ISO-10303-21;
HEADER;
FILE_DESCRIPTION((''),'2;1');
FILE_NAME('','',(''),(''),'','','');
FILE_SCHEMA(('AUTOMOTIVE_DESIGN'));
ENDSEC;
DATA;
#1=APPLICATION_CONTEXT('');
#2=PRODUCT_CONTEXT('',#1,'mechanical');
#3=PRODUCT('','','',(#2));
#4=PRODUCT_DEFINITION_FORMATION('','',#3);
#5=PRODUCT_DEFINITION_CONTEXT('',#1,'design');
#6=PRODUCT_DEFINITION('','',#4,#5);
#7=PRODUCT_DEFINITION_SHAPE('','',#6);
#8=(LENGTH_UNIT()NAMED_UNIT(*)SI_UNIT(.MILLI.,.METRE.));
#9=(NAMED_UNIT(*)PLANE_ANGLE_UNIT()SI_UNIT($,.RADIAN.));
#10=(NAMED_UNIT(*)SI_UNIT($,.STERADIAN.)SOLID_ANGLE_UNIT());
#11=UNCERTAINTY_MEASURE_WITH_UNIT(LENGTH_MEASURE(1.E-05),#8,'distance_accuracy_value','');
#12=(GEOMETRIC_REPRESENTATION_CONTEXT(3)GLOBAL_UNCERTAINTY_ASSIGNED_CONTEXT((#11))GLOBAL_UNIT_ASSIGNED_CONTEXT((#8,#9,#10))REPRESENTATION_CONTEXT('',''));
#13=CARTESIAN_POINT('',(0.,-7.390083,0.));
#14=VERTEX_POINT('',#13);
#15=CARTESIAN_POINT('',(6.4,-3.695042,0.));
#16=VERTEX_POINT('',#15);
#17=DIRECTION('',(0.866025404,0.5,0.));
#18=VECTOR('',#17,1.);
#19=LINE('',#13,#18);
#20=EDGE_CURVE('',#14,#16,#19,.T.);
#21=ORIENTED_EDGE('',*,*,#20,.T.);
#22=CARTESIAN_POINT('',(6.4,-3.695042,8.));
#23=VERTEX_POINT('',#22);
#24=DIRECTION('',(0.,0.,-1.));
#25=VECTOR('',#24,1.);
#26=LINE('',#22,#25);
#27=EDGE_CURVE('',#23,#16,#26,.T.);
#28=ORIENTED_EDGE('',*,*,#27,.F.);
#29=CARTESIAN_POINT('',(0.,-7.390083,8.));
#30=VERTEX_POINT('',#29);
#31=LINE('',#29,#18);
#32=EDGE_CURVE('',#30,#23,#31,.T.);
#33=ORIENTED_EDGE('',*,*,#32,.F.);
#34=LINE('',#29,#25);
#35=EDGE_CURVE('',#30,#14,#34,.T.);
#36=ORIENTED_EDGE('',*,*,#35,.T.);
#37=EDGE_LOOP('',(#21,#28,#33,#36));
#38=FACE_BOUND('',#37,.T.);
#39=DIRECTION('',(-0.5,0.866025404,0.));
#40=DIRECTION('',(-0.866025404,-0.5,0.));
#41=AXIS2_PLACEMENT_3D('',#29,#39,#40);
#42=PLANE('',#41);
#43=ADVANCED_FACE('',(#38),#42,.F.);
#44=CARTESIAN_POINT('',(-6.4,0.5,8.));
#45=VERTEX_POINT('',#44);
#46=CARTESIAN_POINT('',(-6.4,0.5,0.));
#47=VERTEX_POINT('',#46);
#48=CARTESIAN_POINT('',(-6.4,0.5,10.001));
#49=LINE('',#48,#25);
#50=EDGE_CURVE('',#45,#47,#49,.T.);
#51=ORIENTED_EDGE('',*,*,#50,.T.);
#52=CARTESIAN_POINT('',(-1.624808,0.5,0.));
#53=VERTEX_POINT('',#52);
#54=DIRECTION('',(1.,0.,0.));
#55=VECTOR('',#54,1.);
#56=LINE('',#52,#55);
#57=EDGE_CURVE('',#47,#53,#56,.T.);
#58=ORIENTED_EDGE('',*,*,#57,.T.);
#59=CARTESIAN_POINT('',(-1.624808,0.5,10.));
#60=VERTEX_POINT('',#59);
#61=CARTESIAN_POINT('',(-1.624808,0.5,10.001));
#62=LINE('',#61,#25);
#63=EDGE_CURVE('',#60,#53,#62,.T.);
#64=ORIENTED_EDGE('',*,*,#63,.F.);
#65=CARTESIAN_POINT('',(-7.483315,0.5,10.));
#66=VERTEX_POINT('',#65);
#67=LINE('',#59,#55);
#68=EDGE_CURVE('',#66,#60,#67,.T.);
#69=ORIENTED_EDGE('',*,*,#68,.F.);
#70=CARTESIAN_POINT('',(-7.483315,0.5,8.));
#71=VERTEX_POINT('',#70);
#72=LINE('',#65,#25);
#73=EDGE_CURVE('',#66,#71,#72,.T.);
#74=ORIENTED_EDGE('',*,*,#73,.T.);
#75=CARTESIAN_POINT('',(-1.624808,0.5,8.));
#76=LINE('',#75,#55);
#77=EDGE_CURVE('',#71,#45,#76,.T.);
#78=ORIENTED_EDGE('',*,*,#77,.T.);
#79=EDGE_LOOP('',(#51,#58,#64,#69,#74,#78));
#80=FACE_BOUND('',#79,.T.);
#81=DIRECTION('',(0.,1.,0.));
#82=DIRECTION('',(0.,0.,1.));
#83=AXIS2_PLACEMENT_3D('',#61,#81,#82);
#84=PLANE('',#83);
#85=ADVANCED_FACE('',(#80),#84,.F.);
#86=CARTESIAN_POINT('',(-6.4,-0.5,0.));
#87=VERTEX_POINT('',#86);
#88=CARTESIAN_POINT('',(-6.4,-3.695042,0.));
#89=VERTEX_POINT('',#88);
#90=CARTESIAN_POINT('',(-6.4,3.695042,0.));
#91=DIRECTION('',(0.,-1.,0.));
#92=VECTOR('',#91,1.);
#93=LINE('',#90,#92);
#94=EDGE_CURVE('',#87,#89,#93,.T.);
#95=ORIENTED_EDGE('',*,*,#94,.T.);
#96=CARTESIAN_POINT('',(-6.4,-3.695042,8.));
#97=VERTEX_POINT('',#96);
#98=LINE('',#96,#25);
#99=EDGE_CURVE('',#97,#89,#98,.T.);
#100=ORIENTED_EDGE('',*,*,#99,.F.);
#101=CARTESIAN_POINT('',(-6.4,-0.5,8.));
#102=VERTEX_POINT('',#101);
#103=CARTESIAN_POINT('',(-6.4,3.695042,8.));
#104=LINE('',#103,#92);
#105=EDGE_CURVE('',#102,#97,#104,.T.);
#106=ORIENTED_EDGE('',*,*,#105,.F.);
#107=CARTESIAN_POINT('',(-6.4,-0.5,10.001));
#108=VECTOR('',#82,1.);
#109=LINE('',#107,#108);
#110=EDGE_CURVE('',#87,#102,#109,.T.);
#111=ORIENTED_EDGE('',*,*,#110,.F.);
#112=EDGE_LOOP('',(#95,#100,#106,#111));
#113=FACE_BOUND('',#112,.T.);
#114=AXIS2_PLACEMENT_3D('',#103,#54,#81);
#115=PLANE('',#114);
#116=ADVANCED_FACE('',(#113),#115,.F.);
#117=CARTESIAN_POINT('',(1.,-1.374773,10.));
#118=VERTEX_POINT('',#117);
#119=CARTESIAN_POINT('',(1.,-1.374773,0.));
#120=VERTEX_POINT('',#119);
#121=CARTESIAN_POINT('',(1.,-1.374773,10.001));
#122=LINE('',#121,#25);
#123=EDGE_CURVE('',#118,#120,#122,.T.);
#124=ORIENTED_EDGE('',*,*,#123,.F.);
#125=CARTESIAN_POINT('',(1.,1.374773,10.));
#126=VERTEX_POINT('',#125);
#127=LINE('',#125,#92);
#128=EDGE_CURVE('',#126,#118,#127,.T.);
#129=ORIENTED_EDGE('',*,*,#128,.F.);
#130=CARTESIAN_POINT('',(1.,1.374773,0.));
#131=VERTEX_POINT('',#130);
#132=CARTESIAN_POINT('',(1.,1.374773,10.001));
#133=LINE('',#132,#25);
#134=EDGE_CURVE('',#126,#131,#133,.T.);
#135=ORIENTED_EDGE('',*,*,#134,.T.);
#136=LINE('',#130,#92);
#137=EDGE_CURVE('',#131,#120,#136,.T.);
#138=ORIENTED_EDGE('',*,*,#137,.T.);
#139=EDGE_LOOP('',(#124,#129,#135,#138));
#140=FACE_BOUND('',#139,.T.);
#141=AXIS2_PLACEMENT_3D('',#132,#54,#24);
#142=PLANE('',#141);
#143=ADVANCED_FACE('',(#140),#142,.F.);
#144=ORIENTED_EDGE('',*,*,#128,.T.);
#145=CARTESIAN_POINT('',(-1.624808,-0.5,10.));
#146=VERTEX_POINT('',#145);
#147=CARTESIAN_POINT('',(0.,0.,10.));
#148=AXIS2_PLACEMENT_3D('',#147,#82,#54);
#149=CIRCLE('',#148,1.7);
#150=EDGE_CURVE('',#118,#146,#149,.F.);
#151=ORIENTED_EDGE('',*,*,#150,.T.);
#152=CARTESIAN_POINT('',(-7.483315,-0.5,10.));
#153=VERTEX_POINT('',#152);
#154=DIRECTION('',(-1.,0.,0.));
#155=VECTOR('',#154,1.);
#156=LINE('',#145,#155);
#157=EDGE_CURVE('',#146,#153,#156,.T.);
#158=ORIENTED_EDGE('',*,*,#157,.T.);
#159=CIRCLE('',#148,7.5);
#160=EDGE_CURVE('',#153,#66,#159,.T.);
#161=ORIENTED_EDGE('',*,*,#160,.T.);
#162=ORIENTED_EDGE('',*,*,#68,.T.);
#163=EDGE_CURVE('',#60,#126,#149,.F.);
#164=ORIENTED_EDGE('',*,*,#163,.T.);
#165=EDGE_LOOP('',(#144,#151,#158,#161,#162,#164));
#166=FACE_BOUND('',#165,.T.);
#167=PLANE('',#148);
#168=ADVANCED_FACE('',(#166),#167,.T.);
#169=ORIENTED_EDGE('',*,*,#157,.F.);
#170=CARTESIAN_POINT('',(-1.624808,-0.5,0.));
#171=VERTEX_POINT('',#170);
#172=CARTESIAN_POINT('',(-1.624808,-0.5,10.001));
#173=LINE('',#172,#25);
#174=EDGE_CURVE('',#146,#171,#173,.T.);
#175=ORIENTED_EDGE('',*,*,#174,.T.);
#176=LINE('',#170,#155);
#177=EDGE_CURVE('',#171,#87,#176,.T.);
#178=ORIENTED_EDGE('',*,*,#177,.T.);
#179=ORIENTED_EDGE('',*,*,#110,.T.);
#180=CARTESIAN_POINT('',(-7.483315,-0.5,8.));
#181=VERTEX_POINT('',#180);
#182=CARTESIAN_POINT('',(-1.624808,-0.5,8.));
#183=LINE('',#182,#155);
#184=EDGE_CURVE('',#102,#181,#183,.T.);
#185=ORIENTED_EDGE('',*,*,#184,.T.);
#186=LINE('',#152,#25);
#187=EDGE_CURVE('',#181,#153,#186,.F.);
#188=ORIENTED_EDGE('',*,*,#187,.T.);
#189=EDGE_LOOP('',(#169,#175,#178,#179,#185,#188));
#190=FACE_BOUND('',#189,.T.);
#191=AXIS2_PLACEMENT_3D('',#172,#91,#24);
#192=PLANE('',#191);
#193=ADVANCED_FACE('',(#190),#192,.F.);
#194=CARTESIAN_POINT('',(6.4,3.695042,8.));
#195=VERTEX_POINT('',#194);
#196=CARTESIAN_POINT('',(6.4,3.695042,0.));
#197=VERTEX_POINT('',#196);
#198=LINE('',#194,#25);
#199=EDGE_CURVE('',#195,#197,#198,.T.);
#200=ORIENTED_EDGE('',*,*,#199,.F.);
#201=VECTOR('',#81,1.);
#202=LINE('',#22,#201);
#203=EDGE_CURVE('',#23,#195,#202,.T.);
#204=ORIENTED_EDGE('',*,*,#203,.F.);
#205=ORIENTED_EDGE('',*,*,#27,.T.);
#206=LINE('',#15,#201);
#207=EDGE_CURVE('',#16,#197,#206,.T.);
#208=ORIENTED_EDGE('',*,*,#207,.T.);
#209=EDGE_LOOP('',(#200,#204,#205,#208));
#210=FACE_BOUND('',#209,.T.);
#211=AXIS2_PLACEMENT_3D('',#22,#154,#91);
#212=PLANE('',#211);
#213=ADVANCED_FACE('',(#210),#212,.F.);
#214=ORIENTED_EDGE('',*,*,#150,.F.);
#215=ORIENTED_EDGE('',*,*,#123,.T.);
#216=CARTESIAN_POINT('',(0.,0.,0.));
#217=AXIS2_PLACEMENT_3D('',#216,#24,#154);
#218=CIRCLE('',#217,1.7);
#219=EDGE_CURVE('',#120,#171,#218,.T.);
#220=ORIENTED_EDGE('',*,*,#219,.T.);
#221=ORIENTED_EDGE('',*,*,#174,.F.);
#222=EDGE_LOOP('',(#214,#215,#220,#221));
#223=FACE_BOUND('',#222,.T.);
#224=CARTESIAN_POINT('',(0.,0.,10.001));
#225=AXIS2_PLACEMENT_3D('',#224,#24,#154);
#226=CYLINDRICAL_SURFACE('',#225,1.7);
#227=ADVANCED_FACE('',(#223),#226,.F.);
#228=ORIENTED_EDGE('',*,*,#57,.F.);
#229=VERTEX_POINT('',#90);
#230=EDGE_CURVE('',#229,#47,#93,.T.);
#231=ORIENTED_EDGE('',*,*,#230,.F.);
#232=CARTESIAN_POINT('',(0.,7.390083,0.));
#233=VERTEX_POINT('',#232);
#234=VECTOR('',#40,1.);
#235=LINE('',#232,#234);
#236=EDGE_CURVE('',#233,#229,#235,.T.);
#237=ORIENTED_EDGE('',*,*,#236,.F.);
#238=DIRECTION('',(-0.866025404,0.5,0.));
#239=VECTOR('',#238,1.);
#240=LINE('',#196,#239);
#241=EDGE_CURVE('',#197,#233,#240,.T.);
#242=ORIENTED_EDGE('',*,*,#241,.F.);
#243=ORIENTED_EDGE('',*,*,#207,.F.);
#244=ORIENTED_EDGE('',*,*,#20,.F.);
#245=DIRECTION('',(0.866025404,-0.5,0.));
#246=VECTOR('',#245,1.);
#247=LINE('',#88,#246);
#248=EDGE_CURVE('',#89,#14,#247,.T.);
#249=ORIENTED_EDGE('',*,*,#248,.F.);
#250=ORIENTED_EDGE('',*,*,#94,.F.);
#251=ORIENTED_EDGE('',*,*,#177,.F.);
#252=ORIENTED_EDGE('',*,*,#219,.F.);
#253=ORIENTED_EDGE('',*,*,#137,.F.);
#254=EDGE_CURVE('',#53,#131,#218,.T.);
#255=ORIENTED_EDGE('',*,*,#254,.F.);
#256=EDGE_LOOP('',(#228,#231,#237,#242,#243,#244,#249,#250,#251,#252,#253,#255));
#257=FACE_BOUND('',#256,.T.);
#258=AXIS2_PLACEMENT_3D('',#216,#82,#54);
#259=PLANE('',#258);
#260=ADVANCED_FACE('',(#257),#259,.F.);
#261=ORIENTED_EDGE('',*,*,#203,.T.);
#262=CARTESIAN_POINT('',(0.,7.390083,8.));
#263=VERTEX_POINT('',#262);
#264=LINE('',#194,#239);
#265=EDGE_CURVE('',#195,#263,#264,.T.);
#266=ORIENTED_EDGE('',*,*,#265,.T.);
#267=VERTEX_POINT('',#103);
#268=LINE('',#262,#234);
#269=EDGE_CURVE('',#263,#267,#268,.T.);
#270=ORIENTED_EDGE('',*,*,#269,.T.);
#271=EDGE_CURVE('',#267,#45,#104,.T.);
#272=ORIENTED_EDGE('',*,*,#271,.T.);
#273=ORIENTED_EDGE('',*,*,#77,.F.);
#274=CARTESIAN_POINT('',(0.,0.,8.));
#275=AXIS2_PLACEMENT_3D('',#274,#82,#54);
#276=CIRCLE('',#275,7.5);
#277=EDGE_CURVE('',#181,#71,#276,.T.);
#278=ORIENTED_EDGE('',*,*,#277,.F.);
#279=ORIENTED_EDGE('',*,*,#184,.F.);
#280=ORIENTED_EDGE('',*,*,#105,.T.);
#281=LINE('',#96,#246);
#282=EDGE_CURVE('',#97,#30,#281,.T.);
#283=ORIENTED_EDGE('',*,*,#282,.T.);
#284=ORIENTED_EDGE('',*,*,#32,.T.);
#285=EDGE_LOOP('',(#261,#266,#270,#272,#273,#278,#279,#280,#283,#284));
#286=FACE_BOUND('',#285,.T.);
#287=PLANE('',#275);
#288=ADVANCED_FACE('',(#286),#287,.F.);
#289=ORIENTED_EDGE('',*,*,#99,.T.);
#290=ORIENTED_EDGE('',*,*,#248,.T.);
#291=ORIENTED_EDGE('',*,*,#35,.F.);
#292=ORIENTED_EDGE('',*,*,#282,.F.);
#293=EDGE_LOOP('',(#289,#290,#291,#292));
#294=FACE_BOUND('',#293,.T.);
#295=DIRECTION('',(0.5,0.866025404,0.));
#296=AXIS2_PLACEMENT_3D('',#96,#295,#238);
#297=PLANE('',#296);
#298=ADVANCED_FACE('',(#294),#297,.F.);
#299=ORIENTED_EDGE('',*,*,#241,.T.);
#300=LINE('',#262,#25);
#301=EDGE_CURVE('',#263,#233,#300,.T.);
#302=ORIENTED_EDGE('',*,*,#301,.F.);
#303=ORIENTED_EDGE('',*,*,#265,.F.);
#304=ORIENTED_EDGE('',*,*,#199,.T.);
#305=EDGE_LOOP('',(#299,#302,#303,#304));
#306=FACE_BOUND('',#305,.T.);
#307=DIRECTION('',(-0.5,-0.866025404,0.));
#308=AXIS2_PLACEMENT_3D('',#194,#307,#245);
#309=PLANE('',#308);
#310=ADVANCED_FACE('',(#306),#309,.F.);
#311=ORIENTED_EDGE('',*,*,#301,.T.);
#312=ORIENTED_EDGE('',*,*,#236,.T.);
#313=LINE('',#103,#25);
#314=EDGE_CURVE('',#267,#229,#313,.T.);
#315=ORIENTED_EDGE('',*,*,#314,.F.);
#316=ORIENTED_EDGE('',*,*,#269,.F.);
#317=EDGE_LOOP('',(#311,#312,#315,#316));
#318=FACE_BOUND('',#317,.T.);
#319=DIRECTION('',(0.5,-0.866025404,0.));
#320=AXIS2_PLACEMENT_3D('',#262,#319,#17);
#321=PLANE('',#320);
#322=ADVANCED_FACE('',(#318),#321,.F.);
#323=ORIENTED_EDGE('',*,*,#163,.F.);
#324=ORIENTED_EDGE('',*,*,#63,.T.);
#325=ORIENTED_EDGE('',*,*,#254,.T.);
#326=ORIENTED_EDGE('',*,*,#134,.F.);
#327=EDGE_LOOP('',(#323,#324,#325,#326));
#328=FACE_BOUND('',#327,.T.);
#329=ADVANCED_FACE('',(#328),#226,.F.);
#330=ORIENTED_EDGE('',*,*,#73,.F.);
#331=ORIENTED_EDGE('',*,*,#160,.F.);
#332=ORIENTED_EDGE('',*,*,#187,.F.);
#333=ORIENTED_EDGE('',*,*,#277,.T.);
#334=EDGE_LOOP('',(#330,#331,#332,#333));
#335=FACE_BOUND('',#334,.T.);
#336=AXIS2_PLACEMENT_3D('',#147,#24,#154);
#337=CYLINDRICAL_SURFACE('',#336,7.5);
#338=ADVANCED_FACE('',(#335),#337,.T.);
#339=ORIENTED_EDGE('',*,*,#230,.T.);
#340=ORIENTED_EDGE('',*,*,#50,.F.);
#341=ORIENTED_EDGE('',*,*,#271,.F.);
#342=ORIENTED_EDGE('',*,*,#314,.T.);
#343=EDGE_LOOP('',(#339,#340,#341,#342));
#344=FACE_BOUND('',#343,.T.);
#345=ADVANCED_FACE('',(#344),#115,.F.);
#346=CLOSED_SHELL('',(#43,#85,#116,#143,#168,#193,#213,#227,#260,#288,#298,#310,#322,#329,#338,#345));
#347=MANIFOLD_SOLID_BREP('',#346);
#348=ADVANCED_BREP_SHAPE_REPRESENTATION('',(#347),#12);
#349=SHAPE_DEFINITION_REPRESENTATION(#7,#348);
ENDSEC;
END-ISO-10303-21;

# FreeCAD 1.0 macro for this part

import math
import FreeCAD as App
import Part
import Sketcher
from FreeCAD import Vector
Q = App.Units.Quantity


def add_polygon(sketch, points):
    """Adds a closed chain of lines whose ends are joined by coincident constraints."""
    first, n = sketch.GeometryCount, len(points)
    for a, b in zip(points, points[1:] + points[:1]):
        sketch.addGeometry(Part.LineSegment(App.Vector(*a, 0), App.Vector(*b, 0)), False)
    for i in range(n):
        sketch.addConstraint(Sketcher.Constraint("Coincident", first + i, 2, first + (i + 1) % n, 1))

doc = App.newDocument("Part")
body = doc.addObject("PartDesign::Body", "Body")

# Sketch on XY plane
sketch1 = body.newObject("Sketcher::SketchObject", "Sketch")
sketch1.AttachmentSupport = (doc.getObject("XY_Plane"), [""])
sketch1.MapMode = "FlatFace"
add_polygon(sketch1, [(0, 7), (-6, 4), (-6, -4), (0, -7), (6, -4), (6, 4)])  # lines 0-5
sketch1.addConstraint(Sketcher.Constraint("Vertical", 1))
sketch1.addConstraint(Sketcher.Constraint("Vertical", 4))
sketch1.addConstraint(Sketcher.Constraint("Symmetric", 0, 2, 3, 2, -1, 1))
sketch1.addConstraint(Sketcher.Constraint("Symmetric", 2, 2, 5, 2, -1, 1))
sketch1.addConstraint(Sketcher.Constraint("PointOnObject", 2, 2, -2))
sketch1.addConstraint(Sketcher.Constraint("Parallel", 2, 5))
sketch1.addConstraint(Sketcher.Constraint("Horizontal", 1, 2, 3, 2))
sketch1.addConstraint(Sketcher.Constraint("Angle", 0, Q("-150 deg")))
sketch1.addConstraint(Sketcher.Constraint("DistanceX", 0, 2, -1, 1, 6.4))
sketch1.addConstraint(Sketcher.Constraint("DistanceY", 1, 2, 1, 1, 7.390083))
pad1 = body.newObject("PartDesign::Pad", "Pad")
pad1.Profile = sketch1
pad1.Length = 8

# Sketch on XY plane
sketch2 = body.newObject("Sketcher::SketchObject", "Sketch001")
sketch2.AttachmentSupport = (doc.getObject("XY_Plane"), [""])
sketch2.MapMode = "FlatFace"
sketch2.AttachmentOffset = App.Placement(Vector(0, 0, 8), App.Rotation())
sketch2.addGeometry(Part.Circle(Vector(0, 0, 0), Vector(0, 0, 1), 8), False)
sketch2.addConstraint(Sketcher.Constraint("Coincident", 0, 3, -1, 1))
sketch2.addConstraint(Sketcher.Constraint("Diameter", 0, 15.0))
pad2 = body.newObject("PartDesign::Pad", "Pad001")
pad2.Profile = sketch2
pad2.Length = 2

# Sketch on XY plane
sketch3 = body.newObject("Sketcher::SketchObject", "Sketch002")
sketch3.AttachmentSupport = (doc.getObject("XY_Plane"), [""])
sketch3.MapMode = "FlatFace"
sketch3.addGeometry(Part.LineSegment(Vector(1, 1.4, 0), Vector(1, -1.4, 0)), False)
sketch3.addGeometry(Part.ArcOfCircle(Part.Circle(Vector(0, 0, 0), Vector(0, 0, 1), 1.7), math.radians(-163), math.radians(-54)), False)
sketch3.addGeometry(Part.LineSegment(Vector(-1.6, -0.5, 0), Vector(-8.5, -0.5, 0)), False)
sketch3.addGeometry(Part.LineSegment(Vector(-8.5, -0.5, 0), Vector(-8.5, 0.5, 0)), False)
sketch3.addGeometry(Part.LineSegment(Vector(-8.5, 0.5, 0), Vector(-1.6, 0.5, 0)), False)
sketch3.addGeometry(Part.ArcOfCircle(Part.Circle(Vector(0, 0, 0), Vector(0, 0, 1), 1.7), math.radians(54), math.radians(163)), False)
sketch3.addConstraint(Sketcher.Constraint("Coincident", 0, 2, 1, 2))
sketch3.addConstraint(Sketcher.Constraint("Coincident", 1, 1, 2, 1))
sketch3.addConstraint(Sketcher.Constraint("Coincident", 2, 2, 3, 1))
sketch3.addConstraint(Sketcher.Constraint("Coincident", 3, 2, 4, 1))
sketch3.addConstraint(Sketcher.Constraint("Coincident", 4, 2, 5, 2))
sketch3.addConstraint(Sketcher.Constraint("Coincident", 5, 1, 0, 1))
sketch3.addConstraint(Sketcher.Constraint("Vertical", 0))
sketch3.addConstraint(Sketcher.Constraint("Horizontal", 2))
sketch3.addConstraint(Sketcher.Constraint("Vertical", 3))
sketch3.addConstraint(Sketcher.Constraint("Horizontal", 4))
sketch3.addConstraint(Sketcher.Constraint("Coincident", 1, 3, -1, 1))
sketch3.addConstraint(Sketcher.Constraint("Coincident", 5, 3, -1, 1))
sketch3.addConstraint(Sketcher.Constraint("Equal", 1, 5))
sketch3.addConstraint(Sketcher.Constraint("Vertical", 1, 1, 4, 2))
sketch3.addConstraint(Sketcher.Constraint("Radius", 1, 1.7))
sketch3.addConstraint(Sketcher.Constraint("DistanceY", 3, 1, 3, 2, 1.0))
sketch3.addConstraint(Sketcher.Constraint("DistanceX", -1, 1, 0, 2, 1.0))
sketch3.addConstraint(Sketcher.Constraint("DistanceX", 2, 2, 2, 1, 6.866156))
pocket1 = body.newObject("PartDesign::Pocket", "Pocket")
pocket1.Profile = sketch3
pocket1.Type = "UpToFirst"
pocket1.Reversed = True

doc.recompute()
